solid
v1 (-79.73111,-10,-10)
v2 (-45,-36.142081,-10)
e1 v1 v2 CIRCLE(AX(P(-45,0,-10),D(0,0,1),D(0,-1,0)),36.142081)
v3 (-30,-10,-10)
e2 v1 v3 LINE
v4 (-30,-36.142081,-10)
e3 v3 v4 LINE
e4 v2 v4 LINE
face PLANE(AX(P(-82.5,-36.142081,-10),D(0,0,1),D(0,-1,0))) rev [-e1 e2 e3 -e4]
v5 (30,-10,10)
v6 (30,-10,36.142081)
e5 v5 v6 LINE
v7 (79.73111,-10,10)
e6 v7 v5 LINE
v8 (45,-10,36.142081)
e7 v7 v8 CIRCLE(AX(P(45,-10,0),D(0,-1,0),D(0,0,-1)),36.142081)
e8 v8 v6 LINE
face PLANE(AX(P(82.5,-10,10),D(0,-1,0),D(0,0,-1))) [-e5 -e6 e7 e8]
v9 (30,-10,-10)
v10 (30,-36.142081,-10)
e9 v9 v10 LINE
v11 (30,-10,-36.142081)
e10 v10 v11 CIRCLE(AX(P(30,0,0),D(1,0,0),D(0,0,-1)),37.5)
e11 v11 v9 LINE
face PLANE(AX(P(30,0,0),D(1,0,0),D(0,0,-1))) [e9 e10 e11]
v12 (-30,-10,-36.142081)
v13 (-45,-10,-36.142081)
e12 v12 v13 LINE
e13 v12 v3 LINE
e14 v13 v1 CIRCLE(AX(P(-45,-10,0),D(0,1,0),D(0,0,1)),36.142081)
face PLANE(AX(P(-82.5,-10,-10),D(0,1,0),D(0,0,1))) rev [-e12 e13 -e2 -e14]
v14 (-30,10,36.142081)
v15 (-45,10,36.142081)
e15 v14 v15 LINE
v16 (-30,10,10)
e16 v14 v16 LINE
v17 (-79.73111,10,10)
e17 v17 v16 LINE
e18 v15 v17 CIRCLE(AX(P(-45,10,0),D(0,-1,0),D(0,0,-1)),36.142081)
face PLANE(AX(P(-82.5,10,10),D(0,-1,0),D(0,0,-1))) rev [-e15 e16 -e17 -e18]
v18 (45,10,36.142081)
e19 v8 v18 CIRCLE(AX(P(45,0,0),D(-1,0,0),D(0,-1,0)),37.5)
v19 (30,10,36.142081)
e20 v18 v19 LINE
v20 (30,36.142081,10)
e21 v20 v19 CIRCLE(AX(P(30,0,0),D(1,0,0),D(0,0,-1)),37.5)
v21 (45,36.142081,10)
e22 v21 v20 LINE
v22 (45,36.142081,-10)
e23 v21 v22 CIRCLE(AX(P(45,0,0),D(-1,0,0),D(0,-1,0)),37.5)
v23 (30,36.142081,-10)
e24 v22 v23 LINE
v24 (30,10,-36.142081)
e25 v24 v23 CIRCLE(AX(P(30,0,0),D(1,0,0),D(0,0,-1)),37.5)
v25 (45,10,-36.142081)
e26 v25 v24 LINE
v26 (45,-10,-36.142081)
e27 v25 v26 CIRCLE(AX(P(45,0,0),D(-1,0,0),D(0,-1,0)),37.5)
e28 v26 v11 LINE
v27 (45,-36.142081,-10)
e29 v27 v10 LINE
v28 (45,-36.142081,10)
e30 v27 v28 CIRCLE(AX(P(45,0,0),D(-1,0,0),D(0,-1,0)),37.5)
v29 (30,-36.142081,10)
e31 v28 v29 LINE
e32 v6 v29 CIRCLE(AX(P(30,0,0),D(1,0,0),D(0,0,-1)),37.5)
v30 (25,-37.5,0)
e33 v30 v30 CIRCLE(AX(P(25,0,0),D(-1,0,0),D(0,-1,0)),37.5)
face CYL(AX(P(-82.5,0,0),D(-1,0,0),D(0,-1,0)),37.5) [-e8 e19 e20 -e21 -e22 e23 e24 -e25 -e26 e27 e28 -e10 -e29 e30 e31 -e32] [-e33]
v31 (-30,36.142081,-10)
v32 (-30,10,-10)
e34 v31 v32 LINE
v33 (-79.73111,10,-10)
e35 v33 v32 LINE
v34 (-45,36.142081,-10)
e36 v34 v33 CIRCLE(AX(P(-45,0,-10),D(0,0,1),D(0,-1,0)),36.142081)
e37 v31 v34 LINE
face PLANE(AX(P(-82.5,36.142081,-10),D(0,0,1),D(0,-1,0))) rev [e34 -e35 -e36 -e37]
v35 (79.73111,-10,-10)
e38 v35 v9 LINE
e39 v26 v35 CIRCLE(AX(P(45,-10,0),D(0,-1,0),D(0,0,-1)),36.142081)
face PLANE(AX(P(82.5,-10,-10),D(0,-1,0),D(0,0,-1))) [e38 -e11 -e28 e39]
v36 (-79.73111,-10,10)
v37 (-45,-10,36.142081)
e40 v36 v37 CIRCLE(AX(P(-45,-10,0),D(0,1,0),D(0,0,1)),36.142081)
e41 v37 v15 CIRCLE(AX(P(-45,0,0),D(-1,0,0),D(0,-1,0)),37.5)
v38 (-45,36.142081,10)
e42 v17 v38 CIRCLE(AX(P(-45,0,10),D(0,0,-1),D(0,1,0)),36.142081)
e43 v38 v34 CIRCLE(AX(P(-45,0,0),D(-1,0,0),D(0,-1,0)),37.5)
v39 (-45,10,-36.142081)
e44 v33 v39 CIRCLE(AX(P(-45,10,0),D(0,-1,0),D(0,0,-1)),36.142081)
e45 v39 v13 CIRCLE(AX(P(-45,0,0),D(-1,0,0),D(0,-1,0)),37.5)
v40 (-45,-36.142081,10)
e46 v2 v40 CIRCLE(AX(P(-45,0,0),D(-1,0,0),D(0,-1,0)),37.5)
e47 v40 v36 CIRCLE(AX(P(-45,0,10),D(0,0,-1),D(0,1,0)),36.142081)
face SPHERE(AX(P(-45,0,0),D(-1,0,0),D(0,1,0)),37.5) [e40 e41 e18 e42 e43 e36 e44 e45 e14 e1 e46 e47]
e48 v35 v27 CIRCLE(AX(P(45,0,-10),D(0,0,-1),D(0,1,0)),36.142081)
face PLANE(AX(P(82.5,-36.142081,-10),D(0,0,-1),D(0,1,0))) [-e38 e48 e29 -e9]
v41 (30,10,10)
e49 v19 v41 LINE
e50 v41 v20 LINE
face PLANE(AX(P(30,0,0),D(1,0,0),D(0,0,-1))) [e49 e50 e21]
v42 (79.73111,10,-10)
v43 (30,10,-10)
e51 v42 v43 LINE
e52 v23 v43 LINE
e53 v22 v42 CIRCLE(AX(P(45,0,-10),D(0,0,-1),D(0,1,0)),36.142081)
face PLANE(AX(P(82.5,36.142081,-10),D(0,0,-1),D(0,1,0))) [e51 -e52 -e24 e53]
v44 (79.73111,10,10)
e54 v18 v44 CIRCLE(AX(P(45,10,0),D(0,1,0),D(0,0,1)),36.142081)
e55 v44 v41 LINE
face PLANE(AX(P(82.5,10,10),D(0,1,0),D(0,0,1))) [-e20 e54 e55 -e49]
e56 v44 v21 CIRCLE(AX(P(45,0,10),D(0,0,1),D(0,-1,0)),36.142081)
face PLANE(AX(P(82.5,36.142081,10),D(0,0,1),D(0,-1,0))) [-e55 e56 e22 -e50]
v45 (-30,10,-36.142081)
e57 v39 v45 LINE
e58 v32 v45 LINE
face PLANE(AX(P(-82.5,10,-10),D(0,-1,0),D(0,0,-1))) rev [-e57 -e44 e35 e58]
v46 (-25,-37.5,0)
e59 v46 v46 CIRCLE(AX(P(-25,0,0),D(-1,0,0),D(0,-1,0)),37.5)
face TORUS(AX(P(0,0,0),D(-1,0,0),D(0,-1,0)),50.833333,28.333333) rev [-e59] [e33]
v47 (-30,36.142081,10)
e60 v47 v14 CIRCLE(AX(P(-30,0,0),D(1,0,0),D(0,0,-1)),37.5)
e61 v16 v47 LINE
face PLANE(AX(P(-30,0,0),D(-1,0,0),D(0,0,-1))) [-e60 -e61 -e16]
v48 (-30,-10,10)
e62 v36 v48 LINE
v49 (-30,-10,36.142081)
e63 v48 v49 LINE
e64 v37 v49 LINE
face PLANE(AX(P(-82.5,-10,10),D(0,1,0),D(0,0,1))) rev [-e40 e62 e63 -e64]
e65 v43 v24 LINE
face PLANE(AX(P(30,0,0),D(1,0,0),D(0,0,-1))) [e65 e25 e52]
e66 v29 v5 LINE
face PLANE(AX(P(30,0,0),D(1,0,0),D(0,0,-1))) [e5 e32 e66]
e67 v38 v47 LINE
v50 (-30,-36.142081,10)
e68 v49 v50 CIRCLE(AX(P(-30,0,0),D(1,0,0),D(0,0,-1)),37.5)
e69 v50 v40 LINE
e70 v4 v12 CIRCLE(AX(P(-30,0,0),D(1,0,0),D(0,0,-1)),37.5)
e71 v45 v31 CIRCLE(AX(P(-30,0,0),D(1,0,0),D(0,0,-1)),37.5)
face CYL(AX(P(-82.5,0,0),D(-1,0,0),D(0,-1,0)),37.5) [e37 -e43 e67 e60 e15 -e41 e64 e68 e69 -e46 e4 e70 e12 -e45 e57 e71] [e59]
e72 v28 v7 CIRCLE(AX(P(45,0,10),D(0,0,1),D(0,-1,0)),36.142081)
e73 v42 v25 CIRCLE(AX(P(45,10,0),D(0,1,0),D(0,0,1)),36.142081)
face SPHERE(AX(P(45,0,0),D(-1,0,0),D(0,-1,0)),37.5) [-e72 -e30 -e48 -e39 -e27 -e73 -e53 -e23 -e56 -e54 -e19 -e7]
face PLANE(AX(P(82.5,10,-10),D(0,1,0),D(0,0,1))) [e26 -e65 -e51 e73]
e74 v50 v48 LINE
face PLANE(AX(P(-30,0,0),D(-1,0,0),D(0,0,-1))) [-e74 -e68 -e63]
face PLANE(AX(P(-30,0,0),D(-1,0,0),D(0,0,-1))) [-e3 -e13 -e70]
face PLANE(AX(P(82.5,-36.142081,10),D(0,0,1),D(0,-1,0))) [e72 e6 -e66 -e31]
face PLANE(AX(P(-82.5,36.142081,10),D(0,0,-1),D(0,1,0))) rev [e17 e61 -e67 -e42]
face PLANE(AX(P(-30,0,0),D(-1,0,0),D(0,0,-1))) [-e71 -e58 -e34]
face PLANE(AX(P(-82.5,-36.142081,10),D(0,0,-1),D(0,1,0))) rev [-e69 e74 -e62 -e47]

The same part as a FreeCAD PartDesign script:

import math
import FreeCAD as App
import Part
import Sketcher
from FreeCAD import Vector

doc = App.newDocument("Part")
body = doc.addObject("PartDesign::Body", "Body")

# Sketch on XY plane
sketch1 = body.newObject("Sketcher::SketchObject", "Sketch")
sketch1.AttachmentSupport = (doc.getObject("XY_Plane"), [""])
sketch1.MapMode = "FlatFace"
sketch1.addGeometry([
    Part.LineSegment(Vector(45, 37.5, 0), Vector(25, 37.5, 0)),  # 0
    Part.ArcOfCircle(Part.Circle(Vector(0, 50.833333, 0), Vector(0, 0, 1), 28.333333), math.radians(-151.927513), math.radians(-28.072487)),  # 1
    Part.LineSegment(Vector(-25, 37.5, 0), Vector(-45, 37.5, 0)),  # 2
    Part.ArcOfCircle(Part.Circle(Vector(-45, 0, 0), Vector(0, 0, 1), 37.5), math.radians(90), math.radians(180)),  # 3
    Part.LineSegment(Vector(-82.5, 0, 0), Vector(82.5, 0, 0)),  # 4
    Part.ArcOfCircle(Part.Circle(Vector(45, 0, 0), Vector(0, 0, 1), 37.5), math.radians(0), math.radians(90)),  # 5
], False)
sketch1.addConstraint([
    Sketcher.Constraint("Coincident", 0, 2, 1, 2),
    Sketcher.Constraint("Coincident", 1, 1, 2, 1),
    Sketcher.Constraint("Tangent", 2, 2, 3, 1),
    Sketcher.Constraint("Coincident", 3, 2, 4, 1),
    Sketcher.Constraint("Coincident", 4, 2, 5, 1),
    Sketcher.Constraint("Tangent", 5, 2, 0, 1),
    Sketcher.Constraint("Horizontal", 0),
    Sketcher.Constraint("Horizontal", 2),
    Sketcher.Constraint("Horizontal", 4),
    Sketcher.Constraint("Equal", 3, 5),
    Sketcher.Constraint("Symmetric", 3, 3, 5, 3, -1, 1),
    Sketcher.Constraint("Symmetric", 0, 2, 1, 1, -2),
    Sketcher.Constraint("PointOnObject", 3, 2, -1),
    Sketcher.Constraint("Radius", 3, 37.5),
    Sketcher.Constraint("DistanceX", 0, 2, 0, 1, 20.0),
    Sketcher.Constraint("DistanceX", 4, 1, 4, 2, 165.0),
    Sketcher.Constraint("Radius", 1, 28.333333),
])
revolution = body.newObject("PartDesign::Revolution", "Revolution")
revolution.Profile = sketch1
revolution.ReferenceAxis = (sketch1, ["H_Axis"])
revolution.Angle = 360

# Sketch on YZ plane
sketch2 = body.newObject("Sketcher::SketchObject", "Sketch001")
sketch2.AttachmentSupport = (doc.getObject("YZ_Plane"), [""])
sketch2.MapMode = "FlatFace"
sketch2.AttachmentOffset = App.Placement(Vector(0, 0, 30), App.Rotation())
sketch2.addGeometry([
    Part.LineSegment(Vector(36.142081, -10, 0), Vector(10, -10, 0)),  # 0
    Part.LineSegment(Vector(10, -10, 0), Vector(10, -36.142081, 0)),  # 1
    Part.ArcOfCircle(Part.Circle(Vector(0, 0, 0), Vector(0, 0, 1), 37.5), math.radians(-74.53399), math.radians(-15.46601)),  # 2
    Part.LineSegment(Vector(10, 36.142081, 0), Vector(10, 10, 0)),  # 3
    Part.LineSegment(Vector(10, 10, 0), Vector(36.142081, 10, 0)),  # 4
    Part.ArcOfCircle(Part.Circle(Vector(0, 0, 0), Vector(0, 0, 1), 37.5), math.radians(15.46601), math.radians(74.53399)),  # 5
    Part.LineSegment(Vector(-10, 10, 0), Vector(-10, 36.142081, 0)),  # 6
    Part.ArcOfCircle(Part.Circle(Vector(0, 0, 0), Vector(0, 0, 1), 37.5), math.radians(105.46601), math.radians(164.53399)),  # 7
    Part.LineSegment(Vector(-36.142081, 10, 0), Vector(-10, 10, 0)),  # 8
    Part.LineSegment(Vector(-10, -36.142081, 0), Vector(-10, -10, 0)),  # 9
    Part.LineSegment(Vector(-10, -10, 0), Vector(-36.142081, -10, 0)),  # 10
    Part.ArcOfCircle(Part.Circle(Vector(0, 0, 0), Vector(0, 0, 1), 37.5), math.radians(-164.53399), math.radians(-105.46601)),  # 11
], False)
sketch2.addConstraint([
    Sketcher.Constraint("Coincident", 0, 2, 1, 1),
    Sketcher.Constraint("Coincident", 1, 2, 2, 1),
    Sketcher.Constraint("Coincident", 2, 2, 0, 1),
    Sketcher.Constraint("Coincident", 3, 2, 4, 1),
    Sketcher.Constraint("Coincident", 4, 2, 5, 1),
    Sketcher.Constraint("Coincident", 5, 2, 3, 1),
    Sketcher.Constraint("Coincident", 6, 2, 7, 1),
    Sketcher.Constraint("Coincident", 7, 2, 8, 1),
    Sketcher.Constraint("Coincident", 8, 2, 6, 1),
    Sketcher.Constraint("Coincident", 9, 2, 10, 1),
    Sketcher.Constraint("Coincident", 10, 2, 11, 1),
    Sketcher.Constraint("Coincident", 11, 2, 9, 1),
    Sketcher.Constraint("Horizontal", 0),
    Sketcher.Constraint("Vertical", 1),
    Sketcher.Constraint("Vertical", 3),
    Sketcher.Constraint("Horizontal", 4),
    Sketcher.Constraint("Vertical", 6),
    Sketcher.Constraint("Horizontal", 8),
    Sketcher.Constraint("Vertical", 9),
    Sketcher.Constraint("Horizontal", 10),
    Sketcher.Constraint("Coincident", 2, 3, -1, 1),
    Sketcher.Constraint("Coincident", 5, 3, -1, 1),
    Sketcher.Constraint("Coincident", 7, 3, -1, 1),
    Sketcher.Constraint("Coincident", 11, 3, -1, 1),
    Sketcher.Constraint("Equal", 2, 5),
    Sketcher.Constraint("Equal", 5, 7),
    Sketcher.Constraint("Equal", 7, 11),
    Sketcher.Constraint("Symmetric", 0, 2, 8, 2, -1, 1),
    Sketcher.Constraint("Symmetric", 3, 2, 9, 2, -1, 1),
    Sketcher.Constraint("Symmetric", 3, 2, 8, 2, -2),
    Sketcher.Constraint("Equal", 10, 1),
    Sketcher.Constraint("Radius", 2, 37.5),
    Sketcher.Constraint("DistanceX", -1, 1, 0, 2, 10.0),
])
pocket1 = body.newObject("PartDesign::Pocket", "Pocket")
pocket1.Profile = sketch2
pocket1.Type = "ThroughAll"
pocket1.Reversed = True
doc.recompute()

mirrored = body.newObject("PartDesign::Mirrored", "Mirrored")
mirrored.Originals = [pocket1]
mirrored.MirrorPlane = (doc.getObject("YZ_Plane"), [""])
body.Tip = mirrored

doc.recompute()
